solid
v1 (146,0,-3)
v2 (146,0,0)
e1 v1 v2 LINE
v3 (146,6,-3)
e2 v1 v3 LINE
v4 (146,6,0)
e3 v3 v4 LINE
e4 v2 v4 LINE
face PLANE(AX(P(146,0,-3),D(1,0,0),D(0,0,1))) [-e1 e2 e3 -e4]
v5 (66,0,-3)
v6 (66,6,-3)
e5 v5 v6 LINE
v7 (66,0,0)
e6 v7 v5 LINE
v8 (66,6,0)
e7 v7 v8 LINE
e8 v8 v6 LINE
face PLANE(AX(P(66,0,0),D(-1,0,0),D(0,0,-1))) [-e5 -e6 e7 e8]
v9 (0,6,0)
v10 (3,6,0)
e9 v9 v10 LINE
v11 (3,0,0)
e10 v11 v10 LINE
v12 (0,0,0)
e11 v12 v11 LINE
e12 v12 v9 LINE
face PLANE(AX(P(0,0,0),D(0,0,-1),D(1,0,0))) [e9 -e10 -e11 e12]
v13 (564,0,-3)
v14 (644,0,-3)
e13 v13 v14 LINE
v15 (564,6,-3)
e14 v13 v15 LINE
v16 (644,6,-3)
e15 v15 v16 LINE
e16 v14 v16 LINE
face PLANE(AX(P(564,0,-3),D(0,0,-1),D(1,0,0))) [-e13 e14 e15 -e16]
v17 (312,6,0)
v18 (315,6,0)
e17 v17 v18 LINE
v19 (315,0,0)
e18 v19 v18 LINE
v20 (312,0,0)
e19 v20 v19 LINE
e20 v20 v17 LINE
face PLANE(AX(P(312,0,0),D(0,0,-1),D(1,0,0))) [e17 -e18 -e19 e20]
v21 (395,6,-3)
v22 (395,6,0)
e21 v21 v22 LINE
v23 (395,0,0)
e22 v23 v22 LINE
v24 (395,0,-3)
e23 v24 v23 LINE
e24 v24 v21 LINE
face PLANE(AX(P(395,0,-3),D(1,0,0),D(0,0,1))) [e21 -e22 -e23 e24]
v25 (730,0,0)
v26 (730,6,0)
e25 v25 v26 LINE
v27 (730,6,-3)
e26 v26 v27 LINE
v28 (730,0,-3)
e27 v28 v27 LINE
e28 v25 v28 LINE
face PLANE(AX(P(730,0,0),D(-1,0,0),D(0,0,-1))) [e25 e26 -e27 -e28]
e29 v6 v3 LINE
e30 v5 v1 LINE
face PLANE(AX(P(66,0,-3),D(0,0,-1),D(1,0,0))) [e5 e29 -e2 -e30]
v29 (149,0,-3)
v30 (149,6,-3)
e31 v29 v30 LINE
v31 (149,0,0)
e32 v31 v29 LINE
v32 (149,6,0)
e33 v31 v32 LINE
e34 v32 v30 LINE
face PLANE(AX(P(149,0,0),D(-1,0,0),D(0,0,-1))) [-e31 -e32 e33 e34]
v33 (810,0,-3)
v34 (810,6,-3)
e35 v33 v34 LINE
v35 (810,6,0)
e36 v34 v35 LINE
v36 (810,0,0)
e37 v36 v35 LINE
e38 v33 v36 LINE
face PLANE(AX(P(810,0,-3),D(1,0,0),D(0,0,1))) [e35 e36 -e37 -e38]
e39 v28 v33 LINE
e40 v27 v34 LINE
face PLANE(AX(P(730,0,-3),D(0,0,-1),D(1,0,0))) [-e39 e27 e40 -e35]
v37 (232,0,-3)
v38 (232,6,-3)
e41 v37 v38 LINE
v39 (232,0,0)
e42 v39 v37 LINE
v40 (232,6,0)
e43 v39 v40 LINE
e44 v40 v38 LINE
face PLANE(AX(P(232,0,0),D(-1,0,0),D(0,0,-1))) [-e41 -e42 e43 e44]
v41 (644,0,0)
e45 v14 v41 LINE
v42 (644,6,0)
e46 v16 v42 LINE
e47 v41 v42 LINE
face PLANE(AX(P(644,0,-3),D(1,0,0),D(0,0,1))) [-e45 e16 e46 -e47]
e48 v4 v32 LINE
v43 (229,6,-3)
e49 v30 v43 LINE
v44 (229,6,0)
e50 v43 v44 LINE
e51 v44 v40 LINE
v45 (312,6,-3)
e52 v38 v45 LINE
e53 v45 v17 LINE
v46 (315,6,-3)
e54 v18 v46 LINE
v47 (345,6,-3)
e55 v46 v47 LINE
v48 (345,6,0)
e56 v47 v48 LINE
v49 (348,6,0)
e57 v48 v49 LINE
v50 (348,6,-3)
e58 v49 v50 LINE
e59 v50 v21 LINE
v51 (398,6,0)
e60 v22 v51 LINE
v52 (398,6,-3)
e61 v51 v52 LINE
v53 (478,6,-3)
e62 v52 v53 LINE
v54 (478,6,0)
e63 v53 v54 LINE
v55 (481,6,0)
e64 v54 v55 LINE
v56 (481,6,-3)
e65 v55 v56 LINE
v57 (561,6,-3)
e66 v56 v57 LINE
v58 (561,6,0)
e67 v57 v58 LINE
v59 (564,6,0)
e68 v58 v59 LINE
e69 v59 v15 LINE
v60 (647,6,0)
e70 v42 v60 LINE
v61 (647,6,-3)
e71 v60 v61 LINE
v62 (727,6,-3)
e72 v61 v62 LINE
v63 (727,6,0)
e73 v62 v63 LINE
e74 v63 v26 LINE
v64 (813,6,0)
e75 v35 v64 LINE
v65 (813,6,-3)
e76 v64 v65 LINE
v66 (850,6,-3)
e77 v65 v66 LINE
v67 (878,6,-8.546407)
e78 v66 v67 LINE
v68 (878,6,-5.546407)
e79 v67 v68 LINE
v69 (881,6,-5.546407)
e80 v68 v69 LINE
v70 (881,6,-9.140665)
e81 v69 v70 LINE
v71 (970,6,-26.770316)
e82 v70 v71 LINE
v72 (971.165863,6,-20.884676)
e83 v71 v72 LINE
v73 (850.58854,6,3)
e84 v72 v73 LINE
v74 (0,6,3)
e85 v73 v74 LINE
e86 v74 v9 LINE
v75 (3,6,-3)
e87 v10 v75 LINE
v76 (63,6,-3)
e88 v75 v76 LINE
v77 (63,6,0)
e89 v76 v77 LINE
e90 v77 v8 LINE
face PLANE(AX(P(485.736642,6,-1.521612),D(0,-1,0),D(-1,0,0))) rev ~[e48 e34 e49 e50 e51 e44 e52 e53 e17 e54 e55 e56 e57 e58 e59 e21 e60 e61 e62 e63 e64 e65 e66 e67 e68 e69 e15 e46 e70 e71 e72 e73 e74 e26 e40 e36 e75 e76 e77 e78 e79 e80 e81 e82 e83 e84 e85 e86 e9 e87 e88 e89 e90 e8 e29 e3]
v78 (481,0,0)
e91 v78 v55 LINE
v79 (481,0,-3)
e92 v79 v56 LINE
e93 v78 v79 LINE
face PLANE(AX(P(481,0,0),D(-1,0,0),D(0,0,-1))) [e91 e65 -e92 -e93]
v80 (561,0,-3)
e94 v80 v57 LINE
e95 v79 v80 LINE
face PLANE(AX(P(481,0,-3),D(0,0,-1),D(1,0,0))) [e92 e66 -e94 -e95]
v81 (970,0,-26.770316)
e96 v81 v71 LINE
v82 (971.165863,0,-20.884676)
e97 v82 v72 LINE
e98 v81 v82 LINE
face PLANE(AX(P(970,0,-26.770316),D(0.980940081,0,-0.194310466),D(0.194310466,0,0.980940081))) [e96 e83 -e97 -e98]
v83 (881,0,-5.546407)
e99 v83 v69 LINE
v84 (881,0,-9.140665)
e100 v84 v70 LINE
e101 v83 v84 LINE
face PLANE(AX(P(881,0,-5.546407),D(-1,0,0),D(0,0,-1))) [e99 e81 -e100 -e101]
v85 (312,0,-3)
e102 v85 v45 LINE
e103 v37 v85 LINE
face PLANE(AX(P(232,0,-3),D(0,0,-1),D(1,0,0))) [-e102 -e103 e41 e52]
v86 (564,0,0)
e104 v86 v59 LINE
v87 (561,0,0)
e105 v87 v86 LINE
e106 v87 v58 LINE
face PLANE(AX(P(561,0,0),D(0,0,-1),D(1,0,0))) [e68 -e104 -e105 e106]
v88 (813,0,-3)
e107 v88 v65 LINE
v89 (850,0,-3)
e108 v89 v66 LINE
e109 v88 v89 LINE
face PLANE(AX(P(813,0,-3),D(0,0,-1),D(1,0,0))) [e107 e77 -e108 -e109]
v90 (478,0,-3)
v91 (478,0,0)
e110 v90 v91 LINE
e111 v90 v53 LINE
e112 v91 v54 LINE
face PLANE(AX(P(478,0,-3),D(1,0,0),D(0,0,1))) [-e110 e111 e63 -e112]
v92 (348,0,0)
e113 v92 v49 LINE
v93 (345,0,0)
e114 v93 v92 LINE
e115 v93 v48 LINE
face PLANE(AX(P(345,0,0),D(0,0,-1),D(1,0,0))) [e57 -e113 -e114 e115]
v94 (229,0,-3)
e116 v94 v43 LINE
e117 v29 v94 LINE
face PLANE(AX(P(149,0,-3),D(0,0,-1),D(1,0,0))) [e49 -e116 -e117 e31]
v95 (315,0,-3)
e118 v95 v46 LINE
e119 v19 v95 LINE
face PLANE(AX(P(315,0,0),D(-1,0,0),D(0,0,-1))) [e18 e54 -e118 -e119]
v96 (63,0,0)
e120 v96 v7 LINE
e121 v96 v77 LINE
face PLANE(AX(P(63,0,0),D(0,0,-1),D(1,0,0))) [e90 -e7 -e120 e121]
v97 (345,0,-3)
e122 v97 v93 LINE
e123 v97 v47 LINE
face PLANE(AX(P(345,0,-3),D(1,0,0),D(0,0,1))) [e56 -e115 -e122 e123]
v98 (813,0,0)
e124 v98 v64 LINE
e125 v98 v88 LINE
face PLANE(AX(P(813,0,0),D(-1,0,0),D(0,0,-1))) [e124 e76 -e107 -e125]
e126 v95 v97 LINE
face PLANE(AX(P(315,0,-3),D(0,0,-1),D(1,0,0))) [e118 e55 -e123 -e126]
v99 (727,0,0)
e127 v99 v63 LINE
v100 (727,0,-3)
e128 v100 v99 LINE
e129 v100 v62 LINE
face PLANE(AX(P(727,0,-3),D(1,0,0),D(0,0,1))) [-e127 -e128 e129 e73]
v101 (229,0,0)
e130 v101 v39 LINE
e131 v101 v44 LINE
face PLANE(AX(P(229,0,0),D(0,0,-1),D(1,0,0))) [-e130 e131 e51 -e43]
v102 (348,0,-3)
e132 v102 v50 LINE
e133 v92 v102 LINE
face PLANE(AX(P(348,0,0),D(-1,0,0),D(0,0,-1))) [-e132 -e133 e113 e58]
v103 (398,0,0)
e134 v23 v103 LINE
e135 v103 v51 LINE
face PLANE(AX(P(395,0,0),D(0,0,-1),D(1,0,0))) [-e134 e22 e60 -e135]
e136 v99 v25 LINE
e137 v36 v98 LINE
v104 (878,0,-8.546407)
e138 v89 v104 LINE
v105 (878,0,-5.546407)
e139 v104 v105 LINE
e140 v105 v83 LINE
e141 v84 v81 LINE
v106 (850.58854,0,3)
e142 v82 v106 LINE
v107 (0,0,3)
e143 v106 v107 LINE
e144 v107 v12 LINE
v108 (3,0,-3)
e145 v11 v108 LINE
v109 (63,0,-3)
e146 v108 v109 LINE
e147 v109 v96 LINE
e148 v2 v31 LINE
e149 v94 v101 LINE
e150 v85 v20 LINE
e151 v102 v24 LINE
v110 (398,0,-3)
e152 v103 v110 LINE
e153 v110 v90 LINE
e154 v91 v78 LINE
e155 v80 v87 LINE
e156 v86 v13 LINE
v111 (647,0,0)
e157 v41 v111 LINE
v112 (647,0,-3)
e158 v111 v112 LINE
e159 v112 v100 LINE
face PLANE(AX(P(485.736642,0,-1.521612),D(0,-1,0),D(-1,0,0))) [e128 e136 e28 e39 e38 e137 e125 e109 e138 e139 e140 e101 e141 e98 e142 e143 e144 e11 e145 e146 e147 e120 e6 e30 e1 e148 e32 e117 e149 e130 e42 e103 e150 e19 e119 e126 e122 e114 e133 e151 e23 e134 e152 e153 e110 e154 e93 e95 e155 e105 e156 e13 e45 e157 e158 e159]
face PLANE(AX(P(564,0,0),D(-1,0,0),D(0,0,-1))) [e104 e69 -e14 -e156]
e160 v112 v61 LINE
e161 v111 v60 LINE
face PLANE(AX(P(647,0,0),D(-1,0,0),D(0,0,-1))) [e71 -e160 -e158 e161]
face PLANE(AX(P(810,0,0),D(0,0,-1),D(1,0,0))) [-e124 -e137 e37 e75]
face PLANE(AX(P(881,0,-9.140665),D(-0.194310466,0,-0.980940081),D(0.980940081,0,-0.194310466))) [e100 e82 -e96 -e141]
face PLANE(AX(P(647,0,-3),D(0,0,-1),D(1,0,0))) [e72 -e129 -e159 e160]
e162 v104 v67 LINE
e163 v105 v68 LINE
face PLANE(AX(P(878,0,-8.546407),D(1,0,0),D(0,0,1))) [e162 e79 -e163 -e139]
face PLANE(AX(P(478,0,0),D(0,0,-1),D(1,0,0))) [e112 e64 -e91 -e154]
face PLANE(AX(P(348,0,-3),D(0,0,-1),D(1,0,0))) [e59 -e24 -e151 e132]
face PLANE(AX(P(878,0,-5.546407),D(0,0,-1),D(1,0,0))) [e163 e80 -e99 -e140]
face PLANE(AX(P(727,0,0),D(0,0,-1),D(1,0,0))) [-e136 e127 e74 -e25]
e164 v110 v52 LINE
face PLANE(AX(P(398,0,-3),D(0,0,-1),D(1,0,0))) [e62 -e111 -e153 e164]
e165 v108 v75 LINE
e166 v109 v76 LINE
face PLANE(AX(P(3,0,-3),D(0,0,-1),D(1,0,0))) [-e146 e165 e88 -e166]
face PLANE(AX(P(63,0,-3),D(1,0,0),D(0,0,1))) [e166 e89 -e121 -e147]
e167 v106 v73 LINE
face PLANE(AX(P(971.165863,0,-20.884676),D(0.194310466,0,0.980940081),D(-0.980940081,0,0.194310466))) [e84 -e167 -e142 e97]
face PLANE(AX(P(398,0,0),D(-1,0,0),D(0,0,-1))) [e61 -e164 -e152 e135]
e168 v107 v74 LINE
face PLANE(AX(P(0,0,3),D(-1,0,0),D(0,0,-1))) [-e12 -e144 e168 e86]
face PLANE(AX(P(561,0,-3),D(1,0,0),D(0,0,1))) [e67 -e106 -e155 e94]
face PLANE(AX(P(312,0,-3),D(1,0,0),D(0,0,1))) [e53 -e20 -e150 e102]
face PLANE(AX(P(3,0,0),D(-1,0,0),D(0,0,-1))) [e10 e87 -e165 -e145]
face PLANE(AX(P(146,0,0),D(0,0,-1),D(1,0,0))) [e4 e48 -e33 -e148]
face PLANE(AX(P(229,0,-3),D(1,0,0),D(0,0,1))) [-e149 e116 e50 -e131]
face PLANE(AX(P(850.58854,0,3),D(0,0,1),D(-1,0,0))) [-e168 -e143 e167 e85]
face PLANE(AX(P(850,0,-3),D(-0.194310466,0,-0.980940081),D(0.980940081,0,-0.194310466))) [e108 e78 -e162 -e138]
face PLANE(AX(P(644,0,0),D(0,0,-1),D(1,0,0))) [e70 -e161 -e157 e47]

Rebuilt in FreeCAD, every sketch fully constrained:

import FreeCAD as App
import Part
import Sketcher
from FreeCAD import Vector
Q = App.Units.Quantity


def add_polygon(sketch, points):
    """Adds a closed chain of lines whose ends are joined by coincident constraints."""
    first, n = sketch.GeometryCount, len(points)
    for a, b in zip(points, points[1:] + points[:1]):
        sketch.addGeometry(Part.LineSegment(App.Vector(*a, 0), App.Vector(*b, 0)), False)
    for i in range(n):
        sketch.addConstraint(Sketcher.Constraint("Coincident", first + i, 2, first + (i + 1) % n, 1))

doc = App.newDocument("Part")
body = doc.addObject("PartDesign::Body", "Body")

# Sketch on XZ plane
sketch1 = body.newObject("Sketcher::SketchObject", "Sketch")
sketch1.AttachmentSupport = (doc.getObject("XZ_Plane"), [""])
sketch1.MapMode = "FlatFace"
add_polygon(sketch1, [(3, 0), (0, 0), (0, 3), (850.6, 3), (971.2, -20.9), (970, -26.8), (881, -9.1), (881, -5.5), (878, -5.5), (878, -8.5), (850, -3), (813, -3), (813, 0), (810, 0), (810, -3), (730, -3), (730, 0), (727, 0), (727, -3), (647, -3), (647, 0), (644, 0), (644, -3), (564, -3), (564, 0), (561, 0), (561, -3), (481, -3), (481, 0), (478, 0), (478, -3), (398, -3), (398, 0), (395, 0), (395, -3), (348, -3), (348, 0), (345, 0), (345, -3), (315, -3), (315, 0), (312, 0), (312, -3), (232, -3), (232, 0), (229, 0), (229, -3), (149, -3), (149, 0), (146, 0), (146, -3), (66, -3), (66, 0), (63, 0), (63, -3), (3, -3)])  # lines 0-55
sketch1.addConstraint(Sketcher.Constraint("Horizontal", 0))
sketch1.addConstraint(Sketcher.Constraint("Vertical", 1))
sketch1.addConstraint(Sketcher.Constraint("Horizontal", 2))
sketch1.addConstraint(Sketcher.Constraint("Vertical", 6))
sketch1.addConstraint(Sketcher.Constraint("Horizontal", 7))
sketch1.addConstraint(Sketcher.Constraint("Vertical", 8))
sketch1.addConstraint(Sketcher.Constraint("Horizontal", 10))
sketch1.addConstraint(Sketcher.Constraint("Vertical", 11))
sketch1.addConstraint(Sketcher.Constraint("Horizontal", 12))
sketch1.addConstraint(Sketcher.Constraint("Vertical", 13))
sketch1.addConstraint(Sketcher.Constraint("Horizontal", 14))
sketch1.addConstraint(Sketcher.Constraint("Vertical", 15))
sketch1.addConstraint(Sketcher.Constraint("Horizontal", 16))
sketch1.addConstraint(Sketcher.Constraint("Vertical", 17))
sketch1.addConstraint(Sketcher.Constraint("Horizontal", 18))
sketch1.addConstraint(Sketcher.Constraint("Vertical", 19))
sketch1.addConstraint(Sketcher.Constraint("Horizontal", 20))
sketch1.addConstraint(Sketcher.Constraint("Vertical", 21))
sketch1.addConstraint(Sketcher.Constraint("Horizontal", 22))
sketch1.addConstraint(Sketcher.Constraint("Vertical", 23))
sketch1.addConstraint(Sketcher.Constraint("Horizontal", 24))
sketch1.addConstraint(Sketcher.Constraint("Vertical", 25))
sketch1.addConstraint(Sketcher.Constraint("Horizontal", 26))
sketch1.addConstraint(Sketcher.Constraint("Vertical", 27))
sketch1.addConstraint(Sketcher.Constraint("Horizontal", 28))
sketch1.addConstraint(Sketcher.Constraint("Vertical", 29))
sketch1.addConstraint(Sketcher.Constraint("Horizontal", 30))
sketch1.addConstraint(Sketcher.Constraint("Vertical", 31))
sketch1.addConstraint(Sketcher.Constraint("Horizontal", 32))
sketch1.addConstraint(Sketcher.Constraint("Vertical", 33))
sketch1.addConstraint(Sketcher.Constraint("Horizontal", 34))
sketch1.addConstraint(Sketcher.Constraint("Vertical", 35))
sketch1.addConstraint(Sketcher.Constraint("Horizontal", 36))
sketch1.addConstraint(Sketcher.Constraint("Vertical", 37))
sketch1.addConstraint(Sketcher.Constraint("Horizontal", 38))
sketch1.addConstraint(Sketcher.Constraint("Vertical", 39))
sketch1.addConstraint(Sketcher.Constraint("Horizontal", 40))
sketch1.addConstraint(Sketcher.Constraint("Vertical", 41))
sketch1.addConstraint(Sketcher.Constraint("Horizontal", 42))
sketch1.addConstraint(Sketcher.Constraint("Vertical", 43))
sketch1.addConstraint(Sketcher.Constraint("Horizontal", 44))
sketch1.addConstraint(Sketcher.Constraint("Vertical", 45))
sketch1.addConstraint(Sketcher.Constraint("Horizontal", 46))
sketch1.addConstraint(Sketcher.Constraint("Vertical", 47))
sketch1.addConstraint(Sketcher.Constraint("Horizontal", 48))
sketch1.addConstraint(Sketcher.Constraint("Vertical", 49))
sketch1.addConstraint(Sketcher.Constraint("Horizontal", 50))
sketch1.addConstraint(Sketcher.Constraint("Vertical", 51))
sketch1.addConstraint(Sketcher.Constraint("Horizontal", 52))
sketch1.addConstraint(Sketcher.Constraint("Vertical", 53))
sketch1.addConstraint(Sketcher.Constraint("Horizontal", 54))
sketch1.addConstraint(Sketcher.Constraint("Vertical", 55))
sketch1.addConstraint(Sketcher.Constraint("Coincident", 0, 2, -1, 1))
sketch1.addConstraint(Sketcher.Constraint("PointOnObject", 11, 2, -1))
sketch1.addConstraint(Sketcher.Constraint("PointOnObject", 15, 2, -1))
sketch1.addConstraint(Sketcher.Constraint("PointOnObject", 19, 2, -1))
sketch1.addConstraint(Sketcher.Constraint("PointOnObject", 23, 2, -1))
sketch1.addConstraint(Sketcher.Constraint("PointOnObject", 27, 2, -1))
sketch1.addConstraint(Sketcher.Constraint("PointOnObject", 31, 2, -1))
sketch1.addConstraint(Sketcher.Constraint("PointOnObject", 35, 2, -1))
sketch1.addConstraint(Sketcher.Constraint("PointOnObject", 39, 2, -1))
sketch1.addConstraint(Sketcher.Constraint("PointOnObject", 43, 2, -1))
sketch1.addConstraint(Sketcher.Constraint("PointOnObject", 47, 2, -1))
sketch1.addConstraint(Sketcher.Constraint("PointOnObject", 51, 2, -1))
sketch1.addConstraint(Sketcher.Constraint("Perpendicular", 3, 4))
sketch1.addConstraint(Sketcher.Constraint("Perpendicular", 4, 5))
sketch1.addConstraint(Sketcher.Constraint("Parallel", 5, 9))
sketch1.addConstraint(Sketcher.Constraint("Horizontal", 10, 2, 13, 2))
sketch1.addConstraint(Sketcher.Constraint("Horizontal", 14, 2, 17, 2))
sketch1.addConstraint(Sketcher.Constraint("Horizontal", 18, 2, 21, 2))
sketch1.addConstraint(Sketcher.Constraint("Horizontal", 22, 2, 25, 2))
sketch1.addConstraint(Sketcher.Constraint("Horizontal", 26, 2, 29, 2))
sketch1.addConstraint(Sketcher.Constraint("Horizontal", 30, 2, 33, 2))
sketch1.addConstraint(Sketcher.Constraint("Horizontal", 34, 2, 37, 2))
sketch1.addConstraint(Sketcher.Constraint("Horizontal", 38, 2, 41, 2))
sketch1.addConstraint(Sketcher.Constraint("Horizontal", 42, 2, 45, 2))
sketch1.addConstraint(Sketcher.Constraint("Horizontal", 46, 2, 49, 2))
sketch1.addConstraint(Sketcher.Constraint("Horizontal", 50, 2, 53, 2))
sketch1.addConstraint(Sketcher.Constraint("Equal", 0, 7))
sketch1.addConstraint(Sketcher.Constraint("Equal", 7, 12))
sketch1.addConstraint(Sketcher.Constraint("Equal", 12, 16))
sketch1.addConstraint(Sketcher.Constraint("Equal", 14, 18))
sketch1.addConstraint(Sketcher.Constraint("Equal", 16, 20))
sketch1.addConstraint(Sketcher.Constraint("Equal", 18, 22))
sketch1.addConstraint(Sketcher.Constraint("Equal", 20, 24))
sketch1.addConstraint(Sketcher.Constraint("Equal", 22, 26))
sketch1.addConstraint(Sketcher.Constraint("Equal", 24, 28))
sketch1.addConstraint(Sketcher.Constraint("Equal", 26, 30))
sketch1.addConstraint(Sketcher.Constraint("Equal", 28, 32))
sketch1.addConstraint(Sketcher.Constraint("Equal", 32, 36))
sketch1.addConstraint(Sketcher.Constraint("Equal", 36, 40))
sketch1.addConstraint(Sketcher.Constraint("Equal", 30, 42))
sketch1.addConstraint(Sketcher.Constraint("Equal", 40, 44))
sketch1.addConstraint(Sketcher.Constraint("Equal", 42, 46))
sketch1.addConstraint(Sketcher.Constraint("Equal", 44, 48))
sketch1.addConstraint(Sketcher.Constraint("Equal", 46, 50))
sketch1.addConstraint(Sketcher.Constraint("Equal", 48, 52))
sketch1.addConstraint(Sketcher.Constraint("Equal", 52, 1))
sketch1.addConstraint(Sketcher.Constraint("Equal", 1, 8))
sketch1.addConstraint(Sketcher.Constraint("Equal", 8, 11))
sketch1.addConstraint(Sketcher.Constraint("DistanceX", 0, 2, 0, 1, Q("3 mm")))
sketch1.addConstraint(Sketcher.Constraint("DistanceX", 10, 2, 10, 1, Q("37 mm")))
sketch1.addConstraint(Sketcher.Constraint("DistanceX", 14, 2, 14, 1, Q("80 mm")))
sketch1.addConstraint(Sketcher.Constraint("DistanceX", 34, 2, 34, 1, Q("47 mm")))
sketch1.addConstraint(Sketcher.Constraint("DistanceX", 38, 2, 38, 1, Q("30 mm")))
sketch1.addConstraint(Sketcher.Constraint("DistanceX", 54, 2, 54, 1, Q("60 mm")))
sketch1.addConstraint(Sketcher.Constraint("Distance", 4, Q("6 mm")))
sketch1.addConstraint(Sketcher.Constraint("DistanceX", -1, 1, 4, 2, Q("970 mm")))
sketch1.addConstraint(Sketcher.Constraint("DistanceX", -1, 1, 5, 2, Q("881 mm")))
sketch1.addConstraint(Sketcher.Constraint("DistanceX", 2, 1, 2, 2, Q("850.58854 mm")))
sketch1.addConstraint(Sketcher.Constraint("Distance", 3, Q("122.920171 mm")))
pad1 = body.newObject("PartDesign::Pad", "Pad")
pad1.Profile = sketch1
pad1.Length = 6
pad1.Reversed = True

doc.recompute()
